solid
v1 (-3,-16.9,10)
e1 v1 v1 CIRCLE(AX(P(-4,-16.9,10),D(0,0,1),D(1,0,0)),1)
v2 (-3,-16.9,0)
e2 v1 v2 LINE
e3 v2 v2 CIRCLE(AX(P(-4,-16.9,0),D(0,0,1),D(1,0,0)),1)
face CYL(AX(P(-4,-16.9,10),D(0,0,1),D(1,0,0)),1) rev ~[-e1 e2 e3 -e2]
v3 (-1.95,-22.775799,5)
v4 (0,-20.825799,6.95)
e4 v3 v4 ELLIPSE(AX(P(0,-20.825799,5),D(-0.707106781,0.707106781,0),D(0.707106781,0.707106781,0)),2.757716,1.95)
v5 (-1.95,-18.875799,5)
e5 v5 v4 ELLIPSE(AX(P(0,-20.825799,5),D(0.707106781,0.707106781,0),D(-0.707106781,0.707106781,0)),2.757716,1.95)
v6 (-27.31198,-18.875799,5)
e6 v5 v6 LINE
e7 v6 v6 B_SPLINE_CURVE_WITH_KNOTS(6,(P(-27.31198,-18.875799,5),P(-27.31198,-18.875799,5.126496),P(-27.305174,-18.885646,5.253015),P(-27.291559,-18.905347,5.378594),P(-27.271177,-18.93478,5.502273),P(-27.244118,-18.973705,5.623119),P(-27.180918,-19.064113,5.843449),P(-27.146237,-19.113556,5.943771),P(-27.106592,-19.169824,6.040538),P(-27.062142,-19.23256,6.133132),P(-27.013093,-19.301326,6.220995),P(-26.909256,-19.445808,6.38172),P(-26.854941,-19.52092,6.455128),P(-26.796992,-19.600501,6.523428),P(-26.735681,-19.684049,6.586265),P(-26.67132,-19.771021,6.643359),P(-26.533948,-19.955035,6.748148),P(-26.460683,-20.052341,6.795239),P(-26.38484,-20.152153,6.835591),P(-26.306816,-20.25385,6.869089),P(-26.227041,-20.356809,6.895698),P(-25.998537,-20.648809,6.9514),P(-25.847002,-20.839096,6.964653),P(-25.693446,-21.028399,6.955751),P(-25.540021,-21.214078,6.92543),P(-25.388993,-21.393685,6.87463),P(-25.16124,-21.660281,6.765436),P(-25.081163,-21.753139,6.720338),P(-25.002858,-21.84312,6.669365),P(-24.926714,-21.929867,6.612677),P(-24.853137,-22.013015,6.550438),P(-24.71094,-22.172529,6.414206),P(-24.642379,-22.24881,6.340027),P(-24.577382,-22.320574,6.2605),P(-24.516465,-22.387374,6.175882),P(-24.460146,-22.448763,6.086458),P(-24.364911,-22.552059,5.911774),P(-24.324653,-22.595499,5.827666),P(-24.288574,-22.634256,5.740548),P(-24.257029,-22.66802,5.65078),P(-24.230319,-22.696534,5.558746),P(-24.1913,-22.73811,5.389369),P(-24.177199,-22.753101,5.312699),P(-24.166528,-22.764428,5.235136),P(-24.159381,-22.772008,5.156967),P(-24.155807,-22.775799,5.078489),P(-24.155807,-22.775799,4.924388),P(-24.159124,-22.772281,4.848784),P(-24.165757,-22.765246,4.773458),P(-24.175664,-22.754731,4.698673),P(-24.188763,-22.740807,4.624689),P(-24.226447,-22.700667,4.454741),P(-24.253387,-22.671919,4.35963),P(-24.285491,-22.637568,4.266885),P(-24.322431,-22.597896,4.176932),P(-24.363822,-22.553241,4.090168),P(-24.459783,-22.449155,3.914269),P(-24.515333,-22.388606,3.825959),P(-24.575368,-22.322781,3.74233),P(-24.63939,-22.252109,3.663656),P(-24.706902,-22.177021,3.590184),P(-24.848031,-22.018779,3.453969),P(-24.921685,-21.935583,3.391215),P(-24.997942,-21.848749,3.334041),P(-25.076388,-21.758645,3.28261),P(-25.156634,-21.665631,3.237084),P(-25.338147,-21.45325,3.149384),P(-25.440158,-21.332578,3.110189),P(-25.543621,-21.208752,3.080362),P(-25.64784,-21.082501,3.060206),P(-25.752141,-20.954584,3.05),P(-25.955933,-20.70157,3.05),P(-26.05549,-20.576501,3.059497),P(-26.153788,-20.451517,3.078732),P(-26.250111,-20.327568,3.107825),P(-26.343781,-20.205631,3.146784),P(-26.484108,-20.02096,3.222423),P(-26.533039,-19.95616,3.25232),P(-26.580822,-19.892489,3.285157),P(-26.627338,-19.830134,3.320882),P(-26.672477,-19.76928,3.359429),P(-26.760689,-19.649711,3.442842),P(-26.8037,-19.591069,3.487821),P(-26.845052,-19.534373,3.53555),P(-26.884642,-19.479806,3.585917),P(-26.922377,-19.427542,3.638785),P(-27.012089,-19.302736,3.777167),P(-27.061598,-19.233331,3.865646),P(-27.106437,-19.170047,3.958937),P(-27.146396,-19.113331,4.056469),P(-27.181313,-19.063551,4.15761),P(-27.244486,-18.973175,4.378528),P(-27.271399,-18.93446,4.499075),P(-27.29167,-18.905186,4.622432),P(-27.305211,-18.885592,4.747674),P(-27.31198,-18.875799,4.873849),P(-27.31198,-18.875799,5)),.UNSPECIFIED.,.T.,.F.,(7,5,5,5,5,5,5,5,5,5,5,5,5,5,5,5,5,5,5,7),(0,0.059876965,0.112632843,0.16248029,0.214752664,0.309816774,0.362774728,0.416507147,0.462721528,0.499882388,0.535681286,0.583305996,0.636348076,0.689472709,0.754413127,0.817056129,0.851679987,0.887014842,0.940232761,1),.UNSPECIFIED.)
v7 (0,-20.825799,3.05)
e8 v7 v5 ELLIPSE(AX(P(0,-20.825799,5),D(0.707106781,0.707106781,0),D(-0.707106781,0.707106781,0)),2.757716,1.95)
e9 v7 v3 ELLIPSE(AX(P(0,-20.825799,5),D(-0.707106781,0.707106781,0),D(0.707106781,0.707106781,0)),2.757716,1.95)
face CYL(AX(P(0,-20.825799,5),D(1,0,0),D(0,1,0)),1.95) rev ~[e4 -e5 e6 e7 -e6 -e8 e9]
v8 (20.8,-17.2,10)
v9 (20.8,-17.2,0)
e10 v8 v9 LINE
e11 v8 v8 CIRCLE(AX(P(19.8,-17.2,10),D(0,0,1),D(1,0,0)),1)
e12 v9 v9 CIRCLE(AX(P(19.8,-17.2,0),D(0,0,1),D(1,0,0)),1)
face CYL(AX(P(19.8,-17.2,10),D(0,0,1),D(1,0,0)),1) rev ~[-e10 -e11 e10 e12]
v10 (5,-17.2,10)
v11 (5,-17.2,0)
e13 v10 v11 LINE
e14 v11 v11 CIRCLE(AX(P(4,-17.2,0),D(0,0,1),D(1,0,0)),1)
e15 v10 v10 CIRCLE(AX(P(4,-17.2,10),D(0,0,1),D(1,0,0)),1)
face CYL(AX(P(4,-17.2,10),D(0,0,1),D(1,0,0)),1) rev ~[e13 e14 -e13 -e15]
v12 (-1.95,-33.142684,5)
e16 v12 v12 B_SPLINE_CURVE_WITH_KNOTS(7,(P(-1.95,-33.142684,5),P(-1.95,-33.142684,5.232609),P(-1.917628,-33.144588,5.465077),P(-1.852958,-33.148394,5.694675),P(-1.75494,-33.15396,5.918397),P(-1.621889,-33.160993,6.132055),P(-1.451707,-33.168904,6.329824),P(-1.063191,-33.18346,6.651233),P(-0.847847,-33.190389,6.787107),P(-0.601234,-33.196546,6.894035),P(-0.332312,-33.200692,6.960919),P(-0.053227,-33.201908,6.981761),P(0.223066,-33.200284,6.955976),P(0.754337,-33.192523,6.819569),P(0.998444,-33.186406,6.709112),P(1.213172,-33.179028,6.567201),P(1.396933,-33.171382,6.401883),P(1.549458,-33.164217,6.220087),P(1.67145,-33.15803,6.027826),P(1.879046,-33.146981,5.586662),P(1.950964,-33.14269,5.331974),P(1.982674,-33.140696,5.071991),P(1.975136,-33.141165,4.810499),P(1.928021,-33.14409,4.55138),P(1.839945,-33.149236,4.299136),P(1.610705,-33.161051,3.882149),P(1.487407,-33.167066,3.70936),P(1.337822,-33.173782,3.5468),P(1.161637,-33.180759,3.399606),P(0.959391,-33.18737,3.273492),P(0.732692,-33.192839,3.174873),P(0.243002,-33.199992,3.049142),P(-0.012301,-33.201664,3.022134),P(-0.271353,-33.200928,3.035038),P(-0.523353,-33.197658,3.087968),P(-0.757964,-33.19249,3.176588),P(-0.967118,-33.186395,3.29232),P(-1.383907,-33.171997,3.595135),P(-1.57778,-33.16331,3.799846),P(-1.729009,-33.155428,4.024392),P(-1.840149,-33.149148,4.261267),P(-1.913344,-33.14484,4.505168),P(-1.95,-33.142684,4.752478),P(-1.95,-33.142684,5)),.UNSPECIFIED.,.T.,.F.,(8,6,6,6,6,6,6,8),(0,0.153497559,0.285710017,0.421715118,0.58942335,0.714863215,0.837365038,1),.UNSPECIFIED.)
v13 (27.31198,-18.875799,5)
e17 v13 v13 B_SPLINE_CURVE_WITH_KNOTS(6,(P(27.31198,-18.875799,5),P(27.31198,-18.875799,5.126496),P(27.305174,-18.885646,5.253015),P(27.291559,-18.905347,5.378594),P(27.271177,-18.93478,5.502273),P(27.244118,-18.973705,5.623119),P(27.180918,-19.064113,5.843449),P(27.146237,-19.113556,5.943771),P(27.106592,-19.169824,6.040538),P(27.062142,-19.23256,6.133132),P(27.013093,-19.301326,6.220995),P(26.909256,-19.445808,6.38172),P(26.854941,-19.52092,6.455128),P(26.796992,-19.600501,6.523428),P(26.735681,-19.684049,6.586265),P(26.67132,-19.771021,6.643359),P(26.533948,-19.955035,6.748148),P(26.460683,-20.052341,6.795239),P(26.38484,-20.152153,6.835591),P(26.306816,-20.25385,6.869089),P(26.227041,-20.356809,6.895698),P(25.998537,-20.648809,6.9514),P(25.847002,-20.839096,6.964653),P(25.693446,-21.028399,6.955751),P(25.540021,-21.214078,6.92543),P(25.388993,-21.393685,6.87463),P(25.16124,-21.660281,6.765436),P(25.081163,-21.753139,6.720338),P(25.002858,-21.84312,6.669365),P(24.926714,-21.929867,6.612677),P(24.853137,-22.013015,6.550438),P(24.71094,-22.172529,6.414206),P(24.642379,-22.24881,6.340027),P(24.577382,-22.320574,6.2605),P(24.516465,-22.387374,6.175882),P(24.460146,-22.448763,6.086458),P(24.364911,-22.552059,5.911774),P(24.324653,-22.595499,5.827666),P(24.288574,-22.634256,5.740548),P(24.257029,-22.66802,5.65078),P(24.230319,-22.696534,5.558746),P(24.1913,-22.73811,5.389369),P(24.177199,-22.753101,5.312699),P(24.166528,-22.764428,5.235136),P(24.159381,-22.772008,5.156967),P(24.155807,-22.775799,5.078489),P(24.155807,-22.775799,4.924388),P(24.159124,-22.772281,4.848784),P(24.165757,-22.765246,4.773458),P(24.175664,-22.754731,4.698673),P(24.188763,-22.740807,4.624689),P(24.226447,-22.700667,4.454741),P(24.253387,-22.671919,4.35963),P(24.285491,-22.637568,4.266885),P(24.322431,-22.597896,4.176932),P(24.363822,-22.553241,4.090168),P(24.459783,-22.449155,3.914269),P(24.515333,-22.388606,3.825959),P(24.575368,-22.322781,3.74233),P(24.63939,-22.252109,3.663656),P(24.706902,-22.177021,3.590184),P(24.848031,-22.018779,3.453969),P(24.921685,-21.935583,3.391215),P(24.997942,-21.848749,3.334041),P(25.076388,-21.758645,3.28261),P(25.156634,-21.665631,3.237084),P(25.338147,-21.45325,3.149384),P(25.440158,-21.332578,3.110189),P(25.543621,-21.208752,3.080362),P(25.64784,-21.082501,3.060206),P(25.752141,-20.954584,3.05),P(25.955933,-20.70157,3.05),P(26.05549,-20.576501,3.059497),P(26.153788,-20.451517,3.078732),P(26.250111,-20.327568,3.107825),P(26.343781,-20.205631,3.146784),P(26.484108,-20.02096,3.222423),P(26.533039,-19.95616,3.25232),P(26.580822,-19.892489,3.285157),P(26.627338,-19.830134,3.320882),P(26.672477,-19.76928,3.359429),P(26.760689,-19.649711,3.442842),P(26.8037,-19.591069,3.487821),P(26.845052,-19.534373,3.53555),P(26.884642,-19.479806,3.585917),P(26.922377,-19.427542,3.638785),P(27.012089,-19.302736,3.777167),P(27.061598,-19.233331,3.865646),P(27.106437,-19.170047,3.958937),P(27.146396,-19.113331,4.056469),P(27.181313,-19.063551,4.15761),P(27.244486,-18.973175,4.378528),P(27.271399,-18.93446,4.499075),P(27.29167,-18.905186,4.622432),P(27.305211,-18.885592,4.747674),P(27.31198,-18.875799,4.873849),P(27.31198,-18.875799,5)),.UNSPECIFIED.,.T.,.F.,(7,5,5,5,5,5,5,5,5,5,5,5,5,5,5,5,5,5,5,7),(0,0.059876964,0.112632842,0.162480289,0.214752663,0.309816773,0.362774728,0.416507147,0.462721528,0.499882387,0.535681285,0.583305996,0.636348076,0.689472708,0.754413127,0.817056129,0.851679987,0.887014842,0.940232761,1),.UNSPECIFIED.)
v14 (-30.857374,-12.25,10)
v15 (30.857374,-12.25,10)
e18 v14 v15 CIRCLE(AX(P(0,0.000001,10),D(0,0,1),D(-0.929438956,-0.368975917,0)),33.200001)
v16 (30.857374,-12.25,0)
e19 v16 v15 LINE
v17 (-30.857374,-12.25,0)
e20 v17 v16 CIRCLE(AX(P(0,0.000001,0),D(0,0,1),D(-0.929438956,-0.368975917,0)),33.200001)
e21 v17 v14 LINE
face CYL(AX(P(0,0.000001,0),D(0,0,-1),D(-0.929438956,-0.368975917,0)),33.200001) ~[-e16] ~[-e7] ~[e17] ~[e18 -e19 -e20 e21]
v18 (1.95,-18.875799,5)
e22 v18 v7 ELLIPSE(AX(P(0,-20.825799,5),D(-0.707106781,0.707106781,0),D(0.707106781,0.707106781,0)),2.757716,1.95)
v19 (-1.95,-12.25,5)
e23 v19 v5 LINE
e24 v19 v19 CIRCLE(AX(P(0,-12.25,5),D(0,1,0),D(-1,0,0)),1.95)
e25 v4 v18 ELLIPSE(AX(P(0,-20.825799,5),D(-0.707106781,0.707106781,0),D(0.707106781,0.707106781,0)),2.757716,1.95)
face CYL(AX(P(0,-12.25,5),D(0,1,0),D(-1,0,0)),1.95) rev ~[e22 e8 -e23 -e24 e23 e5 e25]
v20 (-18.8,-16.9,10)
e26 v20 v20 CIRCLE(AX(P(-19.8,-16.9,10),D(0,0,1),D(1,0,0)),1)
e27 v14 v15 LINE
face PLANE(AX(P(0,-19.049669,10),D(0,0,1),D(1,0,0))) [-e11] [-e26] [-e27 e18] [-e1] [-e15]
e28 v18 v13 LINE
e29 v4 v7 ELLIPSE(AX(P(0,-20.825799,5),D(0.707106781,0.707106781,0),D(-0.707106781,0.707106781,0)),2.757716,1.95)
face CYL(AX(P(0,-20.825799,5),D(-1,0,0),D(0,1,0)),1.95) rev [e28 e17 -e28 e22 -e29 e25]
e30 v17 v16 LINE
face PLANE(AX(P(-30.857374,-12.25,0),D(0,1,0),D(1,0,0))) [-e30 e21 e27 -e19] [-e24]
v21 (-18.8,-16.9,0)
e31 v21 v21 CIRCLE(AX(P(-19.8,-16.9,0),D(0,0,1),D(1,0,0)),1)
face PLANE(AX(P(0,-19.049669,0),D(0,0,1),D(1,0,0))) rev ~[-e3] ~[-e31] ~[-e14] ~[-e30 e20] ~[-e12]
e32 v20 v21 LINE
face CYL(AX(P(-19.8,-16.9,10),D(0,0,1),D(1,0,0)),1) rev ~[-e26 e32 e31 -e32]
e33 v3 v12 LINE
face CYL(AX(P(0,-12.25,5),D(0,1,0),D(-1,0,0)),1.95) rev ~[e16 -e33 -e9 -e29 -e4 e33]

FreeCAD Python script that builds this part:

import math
import FreeCAD as App
import Part
import Sketcher

V = App.Vector

doc = App.newDocument("Part")
params = doc.addObject("Spreadsheet::Sheet", "Params")
for row, (alias, value) in enumerate([
    ("sketch1_radius", "33.200001 mm"),
    ("pad1_length", "10 mm"),
    ("sketch2_diameter", "2 mm"),
    ("sketch3_diameter", "3.9 mm"),
    ("sketch4_diameter", "3.9 mm"),
], start=1):
    params.set(f"A{row}", alias)
    params.set(f"B{row}", "=" + value)
    params.setAlias(f"B{row}", alias)

body = doc.addObject("PartDesign::Body", "Body")

# Sketch on XY plane
sketch1 = body.newObject("Sketcher::SketchObject", "Sketch")
sketch1.AttachmentSupport = (doc.getObject("XY_Plane"), [""])
sketch1.MapMode = "FlatFace"
sketch1.addGeometry(Part.ArcOfCircle(Part.Circle(V(0, 0, 0), V(0, 0, 1), 33), math.radians(-158), math.radians(-22)), False)
sketch1.addGeometry(Part.LineSegment(V(31, -12, 0), V(-31, -12, 0)), False)
sketch1.addConstraint(Sketcher.Constraint("Coincident", 0, 1, 1, 2))
sketch1.addConstraint(Sketcher.Constraint("Coincident", 1, 1, 0, 2))
sketch1.addConstraint(Sketcher.Constraint("Horizontal", 1))
sketch1.addConstraint(Sketcher.Constraint("Coincident", 0, 3, -1, 1))
sketch1.addConstraint(Sketcher.Constraint("Radius", 0, 33.200001))
sketch1.addConstraint(Sketcher.Constraint("DistanceY", 0, 1, -1, 1, 12.25))
sketch1.setExpression("Constraints[4]", "Params.sketch1_radius")
pad1 = body.newObject("PartDesign::Pad", "Pad")
pad1.Profile = sketch1
pad1.setExpression("Length", "Params.pad1_length")

# Sketch on XY plane
sketch2 = body.newObject("Sketcher::SketchObject", "Sketch001")
sketch2.AttachmentSupport = (doc.getObject("XY_Plane"), [""])
sketch2.MapMode = "FlatFace"
sketch2.AttachmentOffset = App.Placement(V(0, 0, 10), App.Rotation())
sketch2.addGeometry(Part.Circle(V(4, -17.2, 0), V(0, 0, 1), 1), False)
sketch2.addGeometry(Part.Circle(V(19.8, -17.2, 0), V(0, 0, 1), 1), False)
sketch2.addGeometry(Part.Circle(V(-4, -16.9, 0), V(0, 0, 1), 1), False)
sketch2.addGeometry(Part.Circle(V(-19.8, -16.9, 0), V(0, 0, 1), 1), False)
sketch2.addConstraint(Sketcher.Constraint("Equal", 0, 1))
sketch2.addConstraint(Sketcher.Constraint("Equal", 1, 2))
sketch2.addConstraint(Sketcher.Constraint("Equal", 2, 3))
sketch2.addConstraint(Sketcher.Constraint("Horizontal", 0, 3, 1, 3))
sketch2.addConstraint(Sketcher.Constraint("Horizontal", 2, 3, 3, 3))
sketch2.addConstraint(Sketcher.Constraint("Diameter", 0, 2.0))
sketch2.addConstraint(Sketcher.Constraint("DistanceX", -1, 1, 0, 3, 4.0))
sketch2.addConstraint(Sketcher.Constraint("DistanceX", 2, 3, -1, 1, 4.0))
sketch2.addConstraint(Sketcher.Constraint("DistanceY", 0, 3, -1, 1, 17.2))
sketch2.addConstraint(Sketcher.Constraint("DistanceX", -1, 1, 1, 3, 19.8))
sketch2.addConstraint(Sketcher.Constraint("DistanceY", 2, 3, -1, 1, 16.9))
sketch2.addConstraint(Sketcher.Constraint("DistanceX", 3, 3, -1, 1, 19.8))
sketch2.setExpression("Constraints[5]", "Params.sketch2_diameter")
pocket1 = body.newObject("PartDesign::Pocket", "Pocket")
pocket1.Profile = sketch2
pocket1.Type = "ThroughAll"

# Sketch on XZ plane
sketch3 = body.newObject("Sketcher::SketchObject", "Sketch002")
sketch3.AttachmentSupport = (doc.getObject("XZ_Plane"), [""])
sketch3.MapMode = "FlatFace"
sketch3.AttachmentOffset = App.Placement(V(0, 0, 12.25), App.Rotation())
sketch3.addGeometry(Part.Circle(V(0, 5, 0), V(0, 0, 1), 1.9), False)
sketch3.addConstraint(Sketcher.Constraint("PointOnObject", 0, 3, -2))
sketch3.addConstraint(Sketcher.Constraint("Diameter", 0, 3.9))
sketch3.addConstraint(Sketcher.Constraint("DistanceY", -1, 1, 0, 3, 5.0))
sketch3.setExpression("Constraints[1]", "Params.sketch3_diameter")
pocket2 = body.newObject("PartDesign::Pocket", "Pocket001")
pocket2.Profile = sketch3
pocket2.Type = "ThroughAll"
pocket2.Reversed = True

# Sketch on YZ plane
sketch4 = body.newObject("Sketcher::SketchObject", "Sketch003")
sketch4.AttachmentSupport = (doc.getObject("YZ_Plane"), [""])
sketch4.MapMode = "FlatFace"
sketch4.addGeometry(Part.Circle(V(-20.8, 5, 0), V(0, 0, 1), 1.9), False)
sketch4.addConstraint(Sketcher.Constraint("Diameter", 0, 3.9))
sketch4.addConstraint(Sketcher.Constraint("DistanceY", -1, 1, 0, 3, 5.0))
sketch4.addConstraint(Sketcher.Constraint("DistanceX", 0, 3, -1, 1, 20.825799))
sketch4.setExpression("Constraints[0]", "Params.sketch4_diameter")
pocket3 = body.newObject("PartDesign::Pocket", "Pocket002")
pocket3.Profile = sketch4
pocket3.Type = "ThroughAll"
pocket3.Midplane = True

doc.recompute()
